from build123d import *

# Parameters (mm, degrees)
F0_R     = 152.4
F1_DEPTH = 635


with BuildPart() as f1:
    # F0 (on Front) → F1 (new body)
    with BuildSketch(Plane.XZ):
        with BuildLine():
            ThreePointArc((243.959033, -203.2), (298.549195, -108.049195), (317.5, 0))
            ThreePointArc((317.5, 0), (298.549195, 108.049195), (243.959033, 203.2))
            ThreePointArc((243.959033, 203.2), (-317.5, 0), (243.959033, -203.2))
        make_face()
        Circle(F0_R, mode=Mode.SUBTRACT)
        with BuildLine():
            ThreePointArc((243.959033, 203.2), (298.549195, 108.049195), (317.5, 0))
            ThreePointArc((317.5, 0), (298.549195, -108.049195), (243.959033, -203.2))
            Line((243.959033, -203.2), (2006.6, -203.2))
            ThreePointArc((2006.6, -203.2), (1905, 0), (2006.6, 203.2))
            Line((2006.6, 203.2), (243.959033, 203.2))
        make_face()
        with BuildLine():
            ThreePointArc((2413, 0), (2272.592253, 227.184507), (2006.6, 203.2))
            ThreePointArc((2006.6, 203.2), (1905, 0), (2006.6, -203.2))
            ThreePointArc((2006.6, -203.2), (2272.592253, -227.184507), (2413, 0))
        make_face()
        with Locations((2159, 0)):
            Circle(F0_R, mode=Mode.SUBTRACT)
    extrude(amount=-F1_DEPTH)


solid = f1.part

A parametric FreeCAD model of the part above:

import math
import FreeCAD as App
import Part
import Sketcher
from FreeCAD import Vector
Q = App.Units.Quantity

doc = App.newDocument("Part")
body = doc.addObject("PartDesign::Body", "Body")

sketch1 = doc.addObject("Sketcher::SketchObject", "Sketch")
body.addObject(sketch1)
sketch1.AttachmentSupport = (doc.XZ_Plane, [""])
sketch1.MapMode = "FlatFace"
sketch1.addGeometry(Part.ArcOfCircle(Part.Circle(Vector(0, 0, 0), Vector(0, 0, 1), 317), math.radians(40), math.radians(320)), False)
sketch1.addGeometry(Part.LineSegment(Vector(244, -203, 0), Vector(2007, -203, 0)), False)
sketch1.addGeometry(Part.ArcOfCircle(Part.Circle(Vector(2159, 0, 0), Vector(0, 0, 1), 254), math.radians(-127), math.radians(0)), False)
sketch1.addGeometry(Part.ArcOfCircle(Part.Circle(Vector(2159, 0, 0), Vector(0, 0, 1), 254), math.radians(0), math.radians(127)), False)
sketch1.addGeometry(Part.LineSegment(Vector(2007, 203, 0), Vector(244, 203, 0)), False)
sketch1.addGeometry(Part.Circle(Vector(0, 0, 0), Vector(0, 0, 1), 152), False)
sketch1.addGeometry(Part.Circle(Vector(2159, 0, 0), Vector(0, 0, 1), 152), False)
sketch1.addConstraint(Sketcher.Constraint("Coincident", 0, 2, 1, 1))
sketch1.addConstraint(Sketcher.Constraint("Coincident", 1, 2, 2, 1))
sketch1.addConstraint(Sketcher.Constraint("Tangent", 2, 2, 3, 1))
sketch1.addConstraint(Sketcher.Constraint("Coincident", 3, 2, 4, 1))
sketch1.addConstraint(Sketcher.Constraint("Coincident", 4, 2, 0, 1))
sketch1.addConstraint(Sketcher.Constraint("Horizontal", 1))
sketch1.addConstraint(Sketcher.Constraint("Horizontal", 4))
sketch1.addConstraint(Sketcher.Constraint("Coincident", 0, 3, -1, 1))
sketch1.addConstraint(Sketcher.Constraint("Coincident", 5, 3, -1, 1))
sketch1.addConstraint(Sketcher.Constraint("Coincident", 6, 3, 2, 3))
sketch1.addConstraint(Sketcher.Constraint("Equal", 2, 3))
sketch1.addConstraint(Sketcher.Constraint("Equal", 5, 6))
sketch1.addConstraint(Sketcher.Constraint("Symmetric", 1, 2, 3, 2, -1))
sketch1.addConstraint(Sketcher.Constraint("PointOnObject", 2, 2, -1))
sketch1.addConstraint(Sketcher.Constraint("Diameter", 5, Q("12 in")))
sketch1.addConstraint(Sketcher.Constraint("Radius", 2, Q("10 in")))
sketch1.addConstraint(Sketcher.Constraint("Radius", 0, Q("12.5 in")))
sketch1.addConstraint(Sketcher.Constraint("DistanceX", -1, 1, 2, 3, Q("85 in")))
sketch1.addConstraint(Sketcher.Constraint("DistanceX", -1, 1, 1, 2, Q("79 in")))
pad1 = doc.addObject("PartDesign::Pad", "Pad")
body.addObject(pad1)
pad1.Profile = sketch1
pad1.Length = Q("25 in")
pad1.Reversed = True

doc.recompute()
